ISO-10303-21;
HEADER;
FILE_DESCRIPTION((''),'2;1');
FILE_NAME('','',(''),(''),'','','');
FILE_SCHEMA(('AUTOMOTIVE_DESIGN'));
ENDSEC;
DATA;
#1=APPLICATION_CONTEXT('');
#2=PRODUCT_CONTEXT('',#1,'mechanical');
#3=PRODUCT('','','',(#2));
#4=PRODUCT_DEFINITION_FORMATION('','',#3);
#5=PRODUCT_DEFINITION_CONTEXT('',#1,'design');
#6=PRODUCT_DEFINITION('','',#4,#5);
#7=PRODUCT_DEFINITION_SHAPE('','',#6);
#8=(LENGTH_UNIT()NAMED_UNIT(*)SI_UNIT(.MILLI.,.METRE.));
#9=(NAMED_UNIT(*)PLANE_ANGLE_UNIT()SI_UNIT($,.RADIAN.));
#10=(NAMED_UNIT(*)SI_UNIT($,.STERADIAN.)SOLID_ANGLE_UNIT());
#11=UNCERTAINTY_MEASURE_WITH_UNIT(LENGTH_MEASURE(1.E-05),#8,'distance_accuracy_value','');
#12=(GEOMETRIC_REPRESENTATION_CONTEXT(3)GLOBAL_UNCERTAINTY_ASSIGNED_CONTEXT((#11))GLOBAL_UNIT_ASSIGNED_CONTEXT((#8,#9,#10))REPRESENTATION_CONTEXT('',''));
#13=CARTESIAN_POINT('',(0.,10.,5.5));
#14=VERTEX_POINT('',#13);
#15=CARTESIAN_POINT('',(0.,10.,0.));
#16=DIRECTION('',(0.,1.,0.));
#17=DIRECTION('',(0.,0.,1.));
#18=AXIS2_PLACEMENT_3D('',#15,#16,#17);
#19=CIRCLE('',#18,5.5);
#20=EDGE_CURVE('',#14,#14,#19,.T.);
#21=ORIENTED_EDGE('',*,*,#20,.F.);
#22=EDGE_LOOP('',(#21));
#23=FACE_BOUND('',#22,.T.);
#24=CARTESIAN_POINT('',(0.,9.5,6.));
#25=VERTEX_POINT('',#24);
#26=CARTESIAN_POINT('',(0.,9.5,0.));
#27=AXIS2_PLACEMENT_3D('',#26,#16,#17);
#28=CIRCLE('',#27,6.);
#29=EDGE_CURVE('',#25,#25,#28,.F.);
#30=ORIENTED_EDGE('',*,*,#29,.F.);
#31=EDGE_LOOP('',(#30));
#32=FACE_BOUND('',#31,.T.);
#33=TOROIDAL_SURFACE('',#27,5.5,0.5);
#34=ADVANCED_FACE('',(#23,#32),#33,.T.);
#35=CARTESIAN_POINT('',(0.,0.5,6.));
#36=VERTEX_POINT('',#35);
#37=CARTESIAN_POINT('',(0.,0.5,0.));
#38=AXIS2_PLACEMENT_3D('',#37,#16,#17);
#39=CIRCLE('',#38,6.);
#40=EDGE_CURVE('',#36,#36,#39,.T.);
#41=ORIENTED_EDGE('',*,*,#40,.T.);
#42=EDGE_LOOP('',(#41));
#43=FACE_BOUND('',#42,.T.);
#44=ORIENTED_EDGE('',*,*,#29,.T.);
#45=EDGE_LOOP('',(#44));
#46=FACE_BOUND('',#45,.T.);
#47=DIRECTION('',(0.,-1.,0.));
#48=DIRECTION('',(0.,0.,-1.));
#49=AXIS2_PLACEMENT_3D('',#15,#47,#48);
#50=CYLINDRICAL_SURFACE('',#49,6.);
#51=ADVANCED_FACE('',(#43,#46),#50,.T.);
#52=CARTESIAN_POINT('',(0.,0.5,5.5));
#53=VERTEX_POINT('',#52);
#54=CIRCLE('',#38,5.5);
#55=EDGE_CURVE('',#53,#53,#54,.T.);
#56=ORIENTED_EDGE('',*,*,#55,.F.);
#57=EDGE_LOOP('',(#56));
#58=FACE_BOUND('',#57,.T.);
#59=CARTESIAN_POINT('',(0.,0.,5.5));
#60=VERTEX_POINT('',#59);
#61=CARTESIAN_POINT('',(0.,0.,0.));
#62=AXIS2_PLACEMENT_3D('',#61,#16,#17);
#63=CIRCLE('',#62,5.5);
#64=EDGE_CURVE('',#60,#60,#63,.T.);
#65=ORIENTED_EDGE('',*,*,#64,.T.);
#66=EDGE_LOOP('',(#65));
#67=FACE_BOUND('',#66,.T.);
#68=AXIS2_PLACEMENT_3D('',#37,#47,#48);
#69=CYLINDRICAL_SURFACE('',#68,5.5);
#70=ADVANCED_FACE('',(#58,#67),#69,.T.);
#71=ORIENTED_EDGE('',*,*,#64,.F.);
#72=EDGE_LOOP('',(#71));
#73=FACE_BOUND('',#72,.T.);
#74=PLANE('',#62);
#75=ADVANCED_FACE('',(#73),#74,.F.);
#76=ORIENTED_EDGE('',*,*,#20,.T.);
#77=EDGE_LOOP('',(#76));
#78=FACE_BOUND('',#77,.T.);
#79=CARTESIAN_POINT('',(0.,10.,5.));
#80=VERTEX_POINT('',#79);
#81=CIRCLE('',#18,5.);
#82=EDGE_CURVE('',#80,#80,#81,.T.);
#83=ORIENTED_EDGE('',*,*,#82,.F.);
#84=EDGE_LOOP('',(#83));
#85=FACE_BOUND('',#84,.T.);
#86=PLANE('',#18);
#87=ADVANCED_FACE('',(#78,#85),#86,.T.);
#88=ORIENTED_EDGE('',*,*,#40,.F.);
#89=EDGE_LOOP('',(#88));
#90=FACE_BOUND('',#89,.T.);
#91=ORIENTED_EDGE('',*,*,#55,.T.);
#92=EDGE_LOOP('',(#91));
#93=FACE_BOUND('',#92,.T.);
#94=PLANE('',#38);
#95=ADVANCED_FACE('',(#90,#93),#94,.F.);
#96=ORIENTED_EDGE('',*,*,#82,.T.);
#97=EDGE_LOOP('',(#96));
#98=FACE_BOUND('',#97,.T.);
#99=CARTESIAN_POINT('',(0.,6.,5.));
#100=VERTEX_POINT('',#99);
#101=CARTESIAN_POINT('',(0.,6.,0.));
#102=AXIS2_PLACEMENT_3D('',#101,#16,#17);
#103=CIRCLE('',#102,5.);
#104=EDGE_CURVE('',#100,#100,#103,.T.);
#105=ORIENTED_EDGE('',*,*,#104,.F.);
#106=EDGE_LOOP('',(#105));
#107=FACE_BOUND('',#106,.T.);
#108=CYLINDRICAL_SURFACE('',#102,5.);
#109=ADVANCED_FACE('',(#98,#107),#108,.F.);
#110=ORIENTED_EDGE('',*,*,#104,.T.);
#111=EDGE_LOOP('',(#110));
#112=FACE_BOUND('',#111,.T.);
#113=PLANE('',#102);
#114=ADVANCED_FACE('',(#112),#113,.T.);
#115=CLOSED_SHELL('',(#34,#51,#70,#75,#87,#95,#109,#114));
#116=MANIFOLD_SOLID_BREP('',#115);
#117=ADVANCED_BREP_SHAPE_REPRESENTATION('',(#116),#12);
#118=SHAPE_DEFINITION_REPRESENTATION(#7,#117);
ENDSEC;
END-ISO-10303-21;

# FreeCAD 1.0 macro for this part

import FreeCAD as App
import Part
import Sketcher

V = App.Vector
Q = App.Units.Quantity


def edges_at(feature, points):
    """Names of the edges that pass closest to the given points."""
    edges = feature.Shape.Edges
    near = lambda p: min(range(len(edges)), key=lambda i: edges[i].distToShape(Part.Vertex(*p))[0])
    return sorted({f"Edge{near(p) + 1}" for p in points})

doc = App.newDocument("Part")
params = doc.addObject("Spreadsheet::Sheet", "Params")
for row, (alias, value) in enumerate([
    ("sketch1_diameter", "12 mm"),
    ("pad1_length", "10 mm"),
    ("fillet_radius", "0.5 mm"),
    ("sketch2_diameter", "11 mm"),
    ("sketch2_width", "17.94 mm"),
    ("pocket1_length", "0.5 mm"),
    ("sketch3_diameter", "10 mm"),
    ("pocket2_length", "4 mm"),
], start=1):
    params.set(f"A{row}", alias)
    params.set(f"B{row}", "=" + value)
    params.setAlias(f"B{row}", alias)

body = doc.addObject("PartDesign::Body", "Body")

# Sketch on XZ plane
sketch1 = body.newObject("Sketcher::SketchObject", "Sketch")
sketch1.AttachmentSupport = (doc.getObject("XZ_Plane"), [""])
sketch1.MapMode = "FlatFace"
sketch1.addGeometry(Part.Circle(V(0, 0, 0), V(0, 0, 1), 6), False)
sketch1.addConstraint(Sketcher.Constraint("Coincident", 0, 3, -1, 1))
sketch1.addConstraint(Sketcher.Constraint("Diameter", 0, Q("12 mm")))
sketch1.setExpression("Constraints[1]", "Params.sketch1_diameter")
pad1 = body.newObject("PartDesign::Pad", "Pad")
pad1.Profile = sketch1
pad1.setExpression("Length", "Params.pad1_length")
pad1.Reversed = True
doc.recompute()

fillet = body.newObject("PartDesign::Fillet", "Fillet")
fillet.Base = (pad1, edges_at(pad1, [(-6, 10, 0)]))
fillet.setExpression("Radius", "Params.fillet_radius")

# Sketch on XZ plane
sketch2 = body.newObject("Sketcher::SketchObject", "Sketch001")
sketch2.AttachmentSupport = (doc.getObject("XZ_Plane"), [""])
sketch2.MapMode = "FlatFace"
sketch2.addGeometry(Part.LineSegment(V(-8.97, -8.97, 0), V(-8.97, 8.97, 0)), False)
sketch2.addGeometry(Part.LineSegment(V(-8.97, 8.97, 0), V(8.97, 8.97, 0)), False)
sketch2.addGeometry(Part.LineSegment(V(8.97, 8.97, 0), V(8.97, -8.97, 0)), False)
sketch2.addGeometry(Part.LineSegment(V(8.97, -8.97, 0), V(-8.97, -8.97, 0)), False)
sketch2.addGeometry(Part.Circle(V(0, 0, 0), V(0, 0, 1), 5.5), False)
sketch2.addConstraint(Sketcher.Constraint("Coincident", 0, 2, 1, 1))
sketch2.addConstraint(Sketcher.Constraint("Coincident", 1, 2, 2, 1))
sketch2.addConstraint(Sketcher.Constraint("Coincident", 2, 2, 3, 1))
sketch2.addConstraint(Sketcher.Constraint("Coincident", 3, 2, 0, 1))
sketch2.addConstraint(Sketcher.Constraint("Vertical", 0))
sketch2.addConstraint(Sketcher.Constraint("Horizontal", 1))
sketch2.addConstraint(Sketcher.Constraint("Vertical", 2))
sketch2.addConstraint(Sketcher.Constraint("Horizontal", 3))
sketch2.addConstraint(Sketcher.Constraint("Coincident", 4, 3, -1, 1))
sketch2.addConstraint(Sketcher.Constraint("Symmetric", 0, 2, 2, 2, -1, 1))
sketch2.addConstraint(Sketcher.Constraint("Equal", 3, 0))
sketch2.addConstraint(Sketcher.Constraint("Diameter", 4, Q("11 mm")))
sketch2.addConstraint(Sketcher.Constraint("DistanceX", 1, 1, 1, 2, Q("17.94 mm")))
sketch2.setExpression("Constraints[11]", "Params.sketch2_diameter")
sketch2.setExpression("Constraints[12]", "Params.sketch2_width")
pocket1 = body.newObject("PartDesign::Pocket", "Pocket")
pocket1.Profile = sketch2
pocket1.setExpression("Length", "Params.pocket1_length")

# Sketch on XZ plane
sketch3 = body.newObject("Sketcher::SketchObject", "Sketch002")
sketch3.AttachmentSupport = (doc.getObject("XZ_Plane"), [""])
sketch3.MapMode = "FlatFace"
sketch3.AttachmentOffset = App.Placement(V(0, 0, -10), App.Rotation())
sketch3.addGeometry(Part.Circle(V(0, 0, 0), V(0, 0, 1), 5), False)
sketch3.addConstraint(Sketcher.Constraint("Coincident", 0, 3, -1, 1))
sketch3.addConstraint(Sketcher.Constraint("Diameter", 0, Q("10 mm")))
sketch3.setExpression("Constraints[1]", "Params.sketch3_diameter")
pocket2 = body.newObject("PartDesign::Pocket", "Pocket001")
pocket2.Profile = sketch3
pocket2.setExpression("Length", "Params.pocket2_length")
pocket2.Reversed = True

doc.recompute()
